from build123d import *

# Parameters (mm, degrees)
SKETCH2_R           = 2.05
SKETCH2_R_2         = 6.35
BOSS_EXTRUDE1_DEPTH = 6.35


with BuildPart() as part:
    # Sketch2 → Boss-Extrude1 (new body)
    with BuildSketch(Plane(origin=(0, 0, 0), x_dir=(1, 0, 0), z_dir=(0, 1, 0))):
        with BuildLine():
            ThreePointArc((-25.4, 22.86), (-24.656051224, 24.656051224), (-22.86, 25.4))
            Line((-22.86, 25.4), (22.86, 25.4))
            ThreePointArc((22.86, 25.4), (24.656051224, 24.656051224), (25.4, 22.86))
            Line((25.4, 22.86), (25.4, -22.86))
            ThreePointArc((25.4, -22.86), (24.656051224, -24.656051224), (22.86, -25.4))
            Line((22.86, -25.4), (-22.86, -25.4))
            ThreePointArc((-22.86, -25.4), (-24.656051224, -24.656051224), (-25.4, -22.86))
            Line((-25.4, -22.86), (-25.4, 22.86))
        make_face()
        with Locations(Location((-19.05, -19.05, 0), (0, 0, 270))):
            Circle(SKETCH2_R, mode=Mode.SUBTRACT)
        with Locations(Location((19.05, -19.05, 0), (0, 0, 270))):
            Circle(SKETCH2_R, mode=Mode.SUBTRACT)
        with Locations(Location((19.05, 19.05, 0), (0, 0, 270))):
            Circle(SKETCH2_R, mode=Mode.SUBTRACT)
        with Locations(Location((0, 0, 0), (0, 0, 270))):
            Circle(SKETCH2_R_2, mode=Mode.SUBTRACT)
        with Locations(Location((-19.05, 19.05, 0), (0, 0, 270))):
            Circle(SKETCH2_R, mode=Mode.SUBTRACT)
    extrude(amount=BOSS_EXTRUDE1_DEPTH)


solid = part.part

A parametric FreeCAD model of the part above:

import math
import FreeCAD as App
import Part
import Sketcher
from FreeCAD import Vector
Q = App.Units.Quantity

doc = App.newDocument("Part")
body = doc.addObject("PartDesign::Body", "Body")

sketch1 = doc.addObject("Sketcher::SketchObject", "Sketch")
body.addObject(sketch1)
sketch1.AttachmentSupport = (doc.XZ_Plane, [""])
sketch1.MapMode = "FlatFace"
sketch1.addGeometry(Part.ArcOfCircle(Part.Circle(Vector(-22.86, -22.86, 0), Vector(0, 0, 1), 2.54), math.radians(-180), math.radians(-90)), False)
sketch1.addGeometry(Part.LineSegment(Vector(-25.4, -22.86, 0), Vector(-25.4, 22.86, 0)), False)
sketch1.addGeometry(Part.ArcOfCircle(Part.Circle(Vector(-22.86, 22.86, 0), Vector(0, 0, 1), 2.54), math.radians(90), math.radians(180)), False)
sketch1.addGeometry(Part.LineSegment(Vector(-22.86, 25.4, 0), Vector(22.86, 25.4, 0)), False)
sketch1.addGeometry(Part.ArcOfCircle(Part.Circle(Vector(22.86, 22.86, 0), Vector(0, 0, 1), 2.54), math.radians(0), math.radians(90)), False)
sketch1.addGeometry(Part.LineSegment(Vector(25.4, 22.86, 0), Vector(25.4, -22.86, 0)), False)
sketch1.addGeometry(Part.ArcOfCircle(Part.Circle(Vector(22.86, -22.86, 0), Vector(0, 0, 1), 2.54), math.radians(-90), math.radians(0)), False)
sketch1.addGeometry(Part.LineSegment(Vector(22.86, -25.4, 0), Vector(-22.86, -25.4, 0)), False)
sketch1.addGeometry(Part.Circle(Vector(19.05, 19.05, 0), Vector(0, 0, 1), 2.05), False)
sketch1.addGeometry(Part.Circle(Vector(-19.05, 19.05, 0), Vector(0, 0, 1), 2.05), False)
sketch1.addGeometry(Part.Circle(Vector(19.05, -19.05, 0), Vector(0, 0, 1), 2.05), False)
sketch1.addGeometry(Part.Circle(Vector(0, 0, 0), Vector(0, 0, 1), 6.35), False)
sketch1.addGeometry(Part.Circle(Vector(-19.05, -19.05, 0), Vector(0, 0, 1), 2.05), False)
sketch1.addConstraint(Sketcher.Constraint("Tangent", 0, 1, 1, 1))
sketch1.addConstraint(Sketcher.Constraint("Tangent", 1, 2, 2, 2))
sketch1.addConstraint(Sketcher.Constraint("Tangent", 2, 1, 3, 1))
sketch1.addConstraint(Sketcher.Constraint("Tangent", 3, 2, 4, 2))
sketch1.addConstraint(Sketcher.Constraint("Tangent", 4, 1, 5, 1))
sketch1.addConstraint(Sketcher.Constraint("Tangent", 5, 2, 6, 2))
sketch1.addConstraint(Sketcher.Constraint("Tangent", 6, 1, 7, 1))
sketch1.addConstraint(Sketcher.Constraint("Tangent", 7, 2, 0, 2))
sketch1.addConstraint(Sketcher.Constraint("Vertical", 1))
sketch1.addConstraint(Sketcher.Constraint("Horizontal", 3))
sketch1.addConstraint(Sketcher.Constraint("Vertical", 5))
sketch1.addConstraint(Sketcher.Constraint("Horizontal", 7))
sketch1.addConstraint(Sketcher.Constraint("Coincident", 11, 3, -1, 1))
sketch1.addConstraint(Sketcher.Constraint("Equal", 0, 2))
sketch1.addConstraint(Sketcher.Constraint("Equal", 2, 4))
sketch1.addConstraint(Sketcher.Constraint("Equal", 4, 6))
sketch1.addConstraint(Sketcher.Constraint("Equal", 8, 9))
sketch1.addConstraint(Sketcher.Constraint("Equal", 9, 10))
sketch1.addConstraint(Sketcher.Constraint("Equal", 10, 12))
sketch1.addConstraint(Sketcher.Constraint("Symmetric", 0, 3, 4, 3, -1, 1))
sketch1.addConstraint(Sketcher.Constraint("Symmetric", 9, 3, 10, 3, -1, 1))
sketch1.addConstraint(Sketcher.Constraint("Symmetric", 8, 3, 12, 3, -1, 1))
sketch1.addConstraint(Sketcher.Constraint("Symmetric", 8, 3, 9, 3, -2))
sketch1.addConstraint(Sketcher.Constraint("Equal", 7, 1))
sketch1.addConstraint(Sketcher.Constraint("Diameter", 11, Q("0.5 in")))
sketch1.addConstraint(Sketcher.Constraint("Radius", 0, Q("0.1 in")))
sketch1.addConstraint(Sketcher.Constraint("DistanceX", 3, 1, 3, 2, Q("1.8 in")))
sketch1.addConstraint(Sketcher.Constraint("DistanceX", 9, 3, 8, 3, Q("1.5 in")))
sketch1.addConstraint(Sketcher.Constraint("DistanceY", 10, 3, 8, 3, Q("1.5 in")))
sketch1.addConstraint(Sketcher.Constraint("Diameter", 8, 4.1))
pad1 = doc.addObject("PartDesign::Pad", "Pad")
body.addObject(pad1)
pad1.Profile = sketch1
pad1.Length = Q("0.25 in")
pad1.Reversed = True

doc.recompute()
